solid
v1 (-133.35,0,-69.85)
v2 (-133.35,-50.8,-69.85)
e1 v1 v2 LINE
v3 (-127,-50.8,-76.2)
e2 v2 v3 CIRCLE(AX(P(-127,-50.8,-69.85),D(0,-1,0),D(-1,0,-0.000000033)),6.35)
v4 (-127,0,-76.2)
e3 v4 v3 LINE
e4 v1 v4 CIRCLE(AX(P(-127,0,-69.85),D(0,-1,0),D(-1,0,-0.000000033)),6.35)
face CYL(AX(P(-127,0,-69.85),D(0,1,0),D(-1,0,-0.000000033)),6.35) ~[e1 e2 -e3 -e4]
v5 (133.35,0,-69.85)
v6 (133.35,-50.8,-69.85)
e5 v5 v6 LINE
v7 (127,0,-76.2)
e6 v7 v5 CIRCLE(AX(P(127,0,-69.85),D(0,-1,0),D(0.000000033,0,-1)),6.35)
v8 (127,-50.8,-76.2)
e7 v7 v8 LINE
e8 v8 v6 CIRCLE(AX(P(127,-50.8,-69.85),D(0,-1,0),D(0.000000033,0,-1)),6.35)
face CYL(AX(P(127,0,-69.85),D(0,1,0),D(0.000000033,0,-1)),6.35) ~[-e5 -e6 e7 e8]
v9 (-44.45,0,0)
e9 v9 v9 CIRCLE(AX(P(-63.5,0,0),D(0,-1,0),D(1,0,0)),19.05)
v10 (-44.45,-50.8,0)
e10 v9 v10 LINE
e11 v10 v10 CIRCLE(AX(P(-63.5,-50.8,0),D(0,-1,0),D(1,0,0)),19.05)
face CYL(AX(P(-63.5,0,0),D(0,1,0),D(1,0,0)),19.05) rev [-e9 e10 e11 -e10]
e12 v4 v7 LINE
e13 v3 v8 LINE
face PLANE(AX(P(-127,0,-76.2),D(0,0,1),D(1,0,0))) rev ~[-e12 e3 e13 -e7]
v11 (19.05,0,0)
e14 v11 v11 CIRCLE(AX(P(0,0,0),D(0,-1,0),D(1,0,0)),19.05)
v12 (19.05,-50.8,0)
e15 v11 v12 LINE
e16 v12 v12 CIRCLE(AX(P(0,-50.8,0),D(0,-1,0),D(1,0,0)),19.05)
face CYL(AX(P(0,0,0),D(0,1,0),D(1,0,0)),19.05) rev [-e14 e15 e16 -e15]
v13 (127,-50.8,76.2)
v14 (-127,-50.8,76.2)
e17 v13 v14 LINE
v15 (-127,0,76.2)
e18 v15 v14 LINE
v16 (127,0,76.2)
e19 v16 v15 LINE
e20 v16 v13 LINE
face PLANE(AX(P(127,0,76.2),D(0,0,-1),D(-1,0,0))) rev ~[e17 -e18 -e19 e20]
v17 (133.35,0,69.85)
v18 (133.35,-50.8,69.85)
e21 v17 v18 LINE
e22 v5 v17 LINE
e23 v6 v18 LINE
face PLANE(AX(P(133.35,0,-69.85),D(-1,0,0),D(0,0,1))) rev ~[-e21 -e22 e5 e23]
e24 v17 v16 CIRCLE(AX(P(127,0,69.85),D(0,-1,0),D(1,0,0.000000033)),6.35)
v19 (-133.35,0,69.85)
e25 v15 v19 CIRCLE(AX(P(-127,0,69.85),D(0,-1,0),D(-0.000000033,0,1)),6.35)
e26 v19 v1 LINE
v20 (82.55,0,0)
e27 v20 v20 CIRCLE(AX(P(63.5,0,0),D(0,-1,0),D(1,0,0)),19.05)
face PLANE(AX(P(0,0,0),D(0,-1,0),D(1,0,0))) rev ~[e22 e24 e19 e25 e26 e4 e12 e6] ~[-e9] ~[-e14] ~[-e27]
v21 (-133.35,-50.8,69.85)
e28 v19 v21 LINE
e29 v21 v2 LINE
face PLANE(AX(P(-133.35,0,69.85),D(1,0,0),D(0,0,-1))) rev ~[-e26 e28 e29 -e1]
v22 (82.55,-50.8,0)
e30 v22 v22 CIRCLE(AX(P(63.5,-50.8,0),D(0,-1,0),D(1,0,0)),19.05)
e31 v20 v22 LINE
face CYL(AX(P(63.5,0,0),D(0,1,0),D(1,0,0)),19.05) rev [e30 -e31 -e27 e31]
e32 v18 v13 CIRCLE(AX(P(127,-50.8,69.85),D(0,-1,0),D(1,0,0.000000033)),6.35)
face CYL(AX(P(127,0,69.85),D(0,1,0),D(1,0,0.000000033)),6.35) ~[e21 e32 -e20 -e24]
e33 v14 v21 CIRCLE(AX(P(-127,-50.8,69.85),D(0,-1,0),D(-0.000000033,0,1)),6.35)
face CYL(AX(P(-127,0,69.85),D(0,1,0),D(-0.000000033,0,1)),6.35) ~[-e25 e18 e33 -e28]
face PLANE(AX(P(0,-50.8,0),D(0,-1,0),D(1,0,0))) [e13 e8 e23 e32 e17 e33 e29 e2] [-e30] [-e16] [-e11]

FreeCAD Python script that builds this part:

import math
import FreeCAD as App
import Part
import Sketcher
Q = App.Units.Quantity

doc = App.newDocument("Part")
body = doc.addObject("PartDesign::Body", "Body")

sketch1 = doc.addObject("Sketcher::SketchObject", "Sketch")
body.addObject(sketch1)
sketch1.AttachmentSupport = (doc.XZ_Plane, [""])
sketch1.MapMode = "FlatFace"
sketch1.addGeometry([
    Part.LineSegment(App.Vector(-127, -76, 0), App.Vector(127, -76, 0)),
    Part.ArcOfCircle(Part.Circle(App.Vector(127, -70, 0), App.Vector(0, 0, 1), 6), math.radians(-90), math.radians(0)),
    Part.LineSegment(App.Vector(133, -70, 0), App.Vector(133, 70, 0)),
    Part.ArcOfCircle(Part.Circle(App.Vector(127, 70, 0), App.Vector(0, 0, 1), 6), math.radians(0), math.radians(90)),
    Part.LineSegment(App.Vector(127, 76, 0), App.Vector(-127, 76, 0)),
    Part.ArcOfCircle(Part.Circle(App.Vector(-127, 70, 0), App.Vector(0, 0, 1), 6), math.radians(90), math.radians(180)),
    Part.LineSegment(App.Vector(-133, 70, 0), App.Vector(-133, -70, 0)),
    Part.ArcOfCircle(Part.Circle(App.Vector(-127, -70, 0), App.Vector(0, 0, 1), 6), math.radians(-180), math.radians(-90)),
    Part.Circle(App.Vector(-64, 0, 0), App.Vector(0, 0, 1), 19),
    Part.Circle(App.Vector(0, 0, 0), App.Vector(0, 0, 1), 19),
    Part.Circle(App.Vector(64, 0, 0), App.Vector(0, 0, 1), 19),
], False)
sketch1.addConstraint([
    Sketcher.Constraint("Tangent", 0, 2, 1, 1),
    Sketcher.Constraint("Tangent", 1, 2, 2, 1),
    Sketcher.Constraint("Tangent", 2, 2, 3, 1),
    Sketcher.Constraint("Tangent", 3, 2, 4, 1),
    Sketcher.Constraint("Tangent", 4, 2, 5, 1),
    Sketcher.Constraint("Tangent", 5, 2, 6, 1),
    Sketcher.Constraint("Tangent", 6, 2, 7, 1),
    Sketcher.Constraint("Tangent", 7, 2, 0, 1),
    Sketcher.Constraint("Horizontal", 0),
    Sketcher.Constraint("Vertical", 2),
    Sketcher.Constraint("Horizontal", 4),
    Sketcher.Constraint("Vertical", 6),
    Sketcher.Constraint("Coincident", 9, 3, -1, 1),
    Sketcher.Constraint("Equal", 1, 3),
    Sketcher.Constraint("Equal", 3, 5),
    Sketcher.Constraint("Equal", 5, 7),
    Sketcher.Constraint("Equal", 8, 9),
    Sketcher.Constraint("Equal", 9, 10),
    Sketcher.Constraint("Symmetric", 1, 3, 5, 3, -1, 1),
    Sketcher.Constraint("Symmetric", 8, 3, 10, 3, -1, 1),
    Sketcher.Constraint("PointOnObject", 8, 3, -1),
    Sketcher.Constraint("Diameter", 8, Q("1.5 in")),
    Sketcher.Constraint("DistanceX", 0, 1, 0, 2, Q("10 in")),
    Sketcher.Constraint("Radius", 1, Q("0.25 in")),
    Sketcher.Constraint("DistanceY", 2, 1, 2, 2, Q("5.5 in")),
    Sketcher.Constraint("DistanceX", 8, 3, 10, 3, Q("5 in")),
])
pad1 = doc.addObject("PartDesign::Pad", "Pad")
body.addObject(pad1)
pad1.Profile = sketch1
pad1.Length = Q("2 in")

sketch2 = doc.addObject("Sketcher::SketchObject", "Sketch001")
body.addObject(sketch2)
sketch2.AttachmentSupport = (doc.XZ_Plane, [""])
sketch2.MapMode = "FlatFace"
sketch2.addGeometry([
    Part.Circle(App.Vector(-64, 0, 0), App.Vector(0, 0, 1), 19),
    Part.Circle(App.Vector(0, 0, 0), App.Vector(0, 0, 1), 19),
    Part.Circle(App.Vector(64, 0, 0), App.Vector(0, 0, 1), 19),
], False)
sketch2.addConstraint([
    Sketcher.Constraint("Coincident", 1, 3, -1, 1),
    Sketcher.Constraint("Equal", 0, 1),
    Sketcher.Constraint("Equal", 1, 2),
    Sketcher.Constraint("Symmetric", 0, 3, 2, 3, -1, 1),
    Sketcher.Constraint("PointOnObject", 0, 3, -1),
    Sketcher.Constraint("Diameter", 0, Q("1.5 in")),
    Sketcher.Constraint("DistanceX", 0, 3, 2, 3, Q("5 in")),
])
pocket1 = doc.addObject("PartDesign::Pocket", "Pocket")
body.addObject(pocket1)
pocket1.Profile = sketch2
pocket1.Length = Q("1 in")

doc.recompute()
